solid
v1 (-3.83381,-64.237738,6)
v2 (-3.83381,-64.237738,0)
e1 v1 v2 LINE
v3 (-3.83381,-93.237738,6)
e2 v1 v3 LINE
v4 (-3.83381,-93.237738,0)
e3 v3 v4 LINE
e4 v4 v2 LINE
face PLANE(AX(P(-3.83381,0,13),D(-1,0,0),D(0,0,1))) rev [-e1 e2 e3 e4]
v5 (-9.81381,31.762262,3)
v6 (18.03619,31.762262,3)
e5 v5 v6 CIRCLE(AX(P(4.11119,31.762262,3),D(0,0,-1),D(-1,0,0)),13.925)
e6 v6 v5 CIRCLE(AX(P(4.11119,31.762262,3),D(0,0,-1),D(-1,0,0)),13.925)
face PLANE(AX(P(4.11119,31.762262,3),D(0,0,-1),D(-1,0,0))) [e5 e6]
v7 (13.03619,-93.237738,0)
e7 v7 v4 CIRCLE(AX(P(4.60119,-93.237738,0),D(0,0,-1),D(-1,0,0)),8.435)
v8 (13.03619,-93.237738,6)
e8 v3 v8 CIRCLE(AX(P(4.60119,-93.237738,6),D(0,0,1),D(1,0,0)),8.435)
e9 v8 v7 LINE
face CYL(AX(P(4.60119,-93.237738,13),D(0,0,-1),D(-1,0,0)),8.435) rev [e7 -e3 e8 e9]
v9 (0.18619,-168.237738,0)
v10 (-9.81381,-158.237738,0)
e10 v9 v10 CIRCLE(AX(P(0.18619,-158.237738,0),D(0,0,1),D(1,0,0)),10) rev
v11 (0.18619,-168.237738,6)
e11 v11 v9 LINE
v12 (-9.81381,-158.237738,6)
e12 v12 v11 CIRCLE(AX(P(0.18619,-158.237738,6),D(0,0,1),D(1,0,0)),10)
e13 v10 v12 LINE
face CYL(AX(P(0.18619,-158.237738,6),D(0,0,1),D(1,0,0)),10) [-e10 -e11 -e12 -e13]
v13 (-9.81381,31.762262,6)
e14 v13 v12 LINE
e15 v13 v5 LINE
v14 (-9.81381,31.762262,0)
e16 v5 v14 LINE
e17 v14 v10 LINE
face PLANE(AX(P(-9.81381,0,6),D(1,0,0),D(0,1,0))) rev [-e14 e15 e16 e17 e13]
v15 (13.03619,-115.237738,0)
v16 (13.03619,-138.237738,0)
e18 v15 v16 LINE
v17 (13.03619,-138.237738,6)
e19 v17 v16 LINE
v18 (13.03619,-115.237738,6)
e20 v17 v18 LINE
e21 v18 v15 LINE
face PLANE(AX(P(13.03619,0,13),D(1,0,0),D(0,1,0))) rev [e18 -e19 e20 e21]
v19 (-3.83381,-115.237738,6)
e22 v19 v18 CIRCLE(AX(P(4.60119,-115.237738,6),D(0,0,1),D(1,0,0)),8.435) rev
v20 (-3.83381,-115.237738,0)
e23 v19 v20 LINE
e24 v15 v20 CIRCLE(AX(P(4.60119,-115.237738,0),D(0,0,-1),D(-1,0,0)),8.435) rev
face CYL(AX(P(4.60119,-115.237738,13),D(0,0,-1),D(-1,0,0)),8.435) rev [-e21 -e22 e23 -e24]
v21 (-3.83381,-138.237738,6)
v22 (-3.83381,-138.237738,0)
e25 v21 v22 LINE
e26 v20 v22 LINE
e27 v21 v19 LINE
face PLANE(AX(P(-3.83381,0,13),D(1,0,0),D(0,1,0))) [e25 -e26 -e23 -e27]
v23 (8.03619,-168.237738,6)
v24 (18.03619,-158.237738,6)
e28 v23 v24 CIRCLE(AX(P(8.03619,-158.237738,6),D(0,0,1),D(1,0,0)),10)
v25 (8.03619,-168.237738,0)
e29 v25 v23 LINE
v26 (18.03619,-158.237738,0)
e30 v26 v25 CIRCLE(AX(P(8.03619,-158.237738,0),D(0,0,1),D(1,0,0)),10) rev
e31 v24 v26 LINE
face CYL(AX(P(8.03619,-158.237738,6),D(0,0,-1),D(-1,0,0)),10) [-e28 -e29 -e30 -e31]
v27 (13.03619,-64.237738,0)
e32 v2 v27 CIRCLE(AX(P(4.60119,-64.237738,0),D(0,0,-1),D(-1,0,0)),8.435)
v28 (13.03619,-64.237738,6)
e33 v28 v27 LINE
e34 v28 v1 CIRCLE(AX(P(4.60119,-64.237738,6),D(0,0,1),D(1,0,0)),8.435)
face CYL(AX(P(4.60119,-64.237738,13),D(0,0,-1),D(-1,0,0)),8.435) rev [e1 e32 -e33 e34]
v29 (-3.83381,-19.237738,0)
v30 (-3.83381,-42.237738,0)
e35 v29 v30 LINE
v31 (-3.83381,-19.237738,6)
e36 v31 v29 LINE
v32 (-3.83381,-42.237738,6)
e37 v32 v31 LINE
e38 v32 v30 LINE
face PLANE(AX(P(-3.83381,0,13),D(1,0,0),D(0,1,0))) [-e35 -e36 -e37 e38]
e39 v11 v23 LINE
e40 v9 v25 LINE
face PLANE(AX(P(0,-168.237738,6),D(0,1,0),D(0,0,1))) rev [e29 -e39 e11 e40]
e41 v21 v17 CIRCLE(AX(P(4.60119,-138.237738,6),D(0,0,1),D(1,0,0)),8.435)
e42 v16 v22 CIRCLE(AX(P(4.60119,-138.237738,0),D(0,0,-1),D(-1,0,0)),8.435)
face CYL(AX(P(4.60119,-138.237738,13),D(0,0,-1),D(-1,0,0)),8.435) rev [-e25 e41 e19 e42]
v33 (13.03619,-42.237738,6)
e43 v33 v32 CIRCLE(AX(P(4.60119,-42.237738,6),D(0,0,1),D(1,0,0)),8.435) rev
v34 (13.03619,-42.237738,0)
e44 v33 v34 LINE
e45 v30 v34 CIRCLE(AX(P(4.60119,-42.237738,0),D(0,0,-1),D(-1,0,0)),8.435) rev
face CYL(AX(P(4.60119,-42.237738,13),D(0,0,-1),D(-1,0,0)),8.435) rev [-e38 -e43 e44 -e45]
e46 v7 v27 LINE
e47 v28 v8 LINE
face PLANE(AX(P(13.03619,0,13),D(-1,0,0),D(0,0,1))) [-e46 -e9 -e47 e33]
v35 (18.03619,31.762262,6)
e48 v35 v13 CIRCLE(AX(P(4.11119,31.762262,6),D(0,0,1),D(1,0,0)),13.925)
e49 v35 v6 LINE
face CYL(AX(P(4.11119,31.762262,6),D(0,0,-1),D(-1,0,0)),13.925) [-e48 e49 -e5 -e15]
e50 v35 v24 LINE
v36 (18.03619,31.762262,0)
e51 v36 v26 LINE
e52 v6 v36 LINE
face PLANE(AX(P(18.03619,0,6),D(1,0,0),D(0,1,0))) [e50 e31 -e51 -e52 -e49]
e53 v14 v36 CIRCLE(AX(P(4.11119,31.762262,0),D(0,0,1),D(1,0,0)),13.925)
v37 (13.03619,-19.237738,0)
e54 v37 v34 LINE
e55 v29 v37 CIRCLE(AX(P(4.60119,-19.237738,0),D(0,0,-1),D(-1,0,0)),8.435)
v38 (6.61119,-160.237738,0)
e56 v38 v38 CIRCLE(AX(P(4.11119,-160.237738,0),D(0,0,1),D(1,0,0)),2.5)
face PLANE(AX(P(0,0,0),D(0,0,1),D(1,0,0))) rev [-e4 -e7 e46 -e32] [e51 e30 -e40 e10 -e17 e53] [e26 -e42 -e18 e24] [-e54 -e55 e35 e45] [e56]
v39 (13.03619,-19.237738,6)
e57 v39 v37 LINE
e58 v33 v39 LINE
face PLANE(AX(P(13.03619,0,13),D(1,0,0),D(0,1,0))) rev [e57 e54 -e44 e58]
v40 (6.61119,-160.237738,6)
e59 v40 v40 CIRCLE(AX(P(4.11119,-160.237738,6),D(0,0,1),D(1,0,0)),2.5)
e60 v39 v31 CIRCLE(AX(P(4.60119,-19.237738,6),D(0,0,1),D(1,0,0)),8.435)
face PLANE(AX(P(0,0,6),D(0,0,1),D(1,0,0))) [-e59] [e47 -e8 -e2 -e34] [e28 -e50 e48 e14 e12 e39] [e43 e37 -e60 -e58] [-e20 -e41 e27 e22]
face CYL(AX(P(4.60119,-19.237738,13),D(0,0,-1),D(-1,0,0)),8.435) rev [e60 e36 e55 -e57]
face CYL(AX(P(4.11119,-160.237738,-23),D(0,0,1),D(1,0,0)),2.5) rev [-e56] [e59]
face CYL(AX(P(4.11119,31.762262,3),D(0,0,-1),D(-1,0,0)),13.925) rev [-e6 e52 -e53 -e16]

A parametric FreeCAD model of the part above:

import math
import FreeCAD as App
import Part
import Sketcher
from FreeCAD import Vector


def edges_at(feature, points):
    """Names of the edges that pass closest to the given points."""
    edges = feature.Shape.Edges
    near = lambda p: min(range(len(edges)), key=lambda i: edges[i].distToShape(Part.Vertex(*p))[0])
    return sorted({f"Edge{near(p) + 1}" for p in points})

doc = App.newDocument("Part")
body = doc.addObject("PartDesign::Body", "Body")

sketch1 = doc.addObject("Sketcher::SketchObject", "Sketch")
body.addObject(sketch1)
sketch1.AttachmentSupport = (doc.XY_Plane, [""])
sketch1.MapMode = "FlatFace"
sketch1.addGeometry(Part.LineSegment(Vector(-9.81381, 31.762262, 0), Vector(-9.81381, -168.237738, 0)), False)
sketch1.addGeometry(Part.LineSegment(Vector(-9.81381, -168.237738, 0), Vector(18.03619, -168.237738, 0)), False)
sketch1.addGeometry(Part.LineSegment(Vector(18.03619, -168.237738, 0), Vector(18.03619, 31.762262, 0)), False)
sketch1.addGeometry(Part.ArcOfCircle(Part.Circle(Vector(4.11119, 31.762262, 0), Vector(0, 0, 1), 13.925), math.radians(0), math.radians(180)), False)
sketch1.addConstraint(Sketcher.Constraint("Coincident", 0, 2, 1, 1))
sketch1.addConstraint(Sketcher.Constraint("Coincident", 1, 2, 2, 1))
sketch1.addConstraint(Sketcher.Constraint("Tangent", 2, 2, 3, 1))
sketch1.addConstraint(Sketcher.Constraint("Tangent", 3, 2, 0, 1))
sketch1.addConstraint(Sketcher.Constraint("Vertical", 0))
sketch1.addConstraint(Sketcher.Constraint("Horizontal", 1))
sketch1.addConstraint(Sketcher.Constraint("Vertical", 2))
sketch1.addConstraint(Sketcher.Constraint("DistanceY", 0, 2, 0, 1, 200.0))
sketch1.addConstraint(Sketcher.Constraint("Radius", 3, 13.925))
sketch1.addConstraint(Sketcher.Constraint("DistanceX", -1, 1, 3, 3, 4.11119))
sketch1.addConstraint(Sketcher.Constraint("DistanceY", -1, 1, 3, 3, 31.762262))
pad1 = doc.addObject("PartDesign::Pad", "Pad")
body.addObject(pad1)
pad1.Profile = sketch1
pad1.Length = 6

sketch2 = doc.addObject("Sketcher::SketchObject", "Sketch001")
body.addObject(sketch2)
sketch2.AttachmentSupport = (doc.XY_Plane, [""])
sketch2.MapMode = "FlatFace"
sketch2.AttachmentOffset = App.Placement(Vector(0, 0, 6), App.Rotation())
sketch2.addGeometry(Part.Circle(Vector(4.11119, -160.237738, 0), Vector(0, 0, 1), 2.5), False)
sketch2.addConstraint(Sketcher.Constraint("Diameter", 0, 5.0))
sketch2.addConstraint(Sketcher.Constraint("DistanceX", -1, 1, 0, 3, 4.11119))
sketch2.addConstraint(Sketcher.Constraint("DistanceY", 0, 3, -1, 1, 160.237738))
pocket1 = doc.addObject("PartDesign::Pocket", "Pocket")
body.addObject(pocket1)
pocket1.Profile = sketch2
pocket1.Length = 29

sketch3 = doc.addObject("Sketcher::SketchObject", "Sketch002")
body.addObject(sketch3)
sketch3.AttachmentSupport = (doc.XY_Plane, [""])
sketch3.MapMode = "FlatFace"
sketch3.addGeometry(Part.Circle(Vector(4.11119, 31.762262, 0), Vector(0, 0, 1), 13.925), False)
sketch3.addConstraint(Sketcher.Constraint("Diameter", 0, 27.85))
sketch3.addConstraint(Sketcher.Constraint("DistanceX", -1, 1, 0, 3, 4.11119))
sketch3.addConstraint(Sketcher.Constraint("DistanceY", -1, 1, 0, 3, 31.762262))
pocket2 = doc.addObject("PartDesign::Pocket", "Pocket001")
body.addObject(pocket2)
pocket2.Profile = sketch3
pocket2.Length = 3
pocket2.Reversed = True

sketch4 = doc.addObject("Sketcher::SketchObject", "Sketch003")
body.addObject(sketch4)
sketch4.AttachmentSupport = (doc.XY_Plane, [""])
sketch4.MapMode = "FlatFace"
sketch4.addGeometry(Part.ArcOfCircle(Part.Circle(Vector(4.60119, -115.237738, 0), Vector(0, 0, 1), 8.435), math.radians(0), math.radians(180)), False)
sketch4.addGeometry(Part.LineSegment(Vector(13.03619, -115.237738, 0), Vector(13.03619, -138.237738, 0)), False)
sketch4.addGeometry(Part.ArcOfCircle(Part.Circle(Vector(4.60119, -138.237738, 0), Vector(0, 0, 1), 8.435), math.radians(180), math.radians(360)), False)
sketch4.addGeometry(Part.LineSegment(Vector(-3.83381, -138.237738, 0), Vector(-3.83381, -115.237738, 0)), False)
sketch4.addGeometry(Part.ArcOfCircle(Part.Circle(Vector(4.60119, -93.237738, 0), Vector(0, 0, 1), 8.435), math.radians(180), math.radians(360)), False)
sketch4.addGeometry(Part.LineSegment(Vector(-3.83381, -93.237738, 0), Vector(-3.83381, -64.237738, 0)), False)
sketch4.addGeometry(Part.ArcOfCircle(Part.Circle(Vector(4.60119, -64.237738, 0), Vector(0, 0, 1), 8.435), math.radians(0), math.radians(180)), False)
sketch4.addGeometry(Part.LineSegment(Vector(13.03619, -64.237738, 0), Vector(13.03619, -93.237738, 0)), False)
sketch4.addGeometry(Part.ArcOfCircle(Part.Circle(Vector(4.60119, -42.237738, 0), Vector(0, 0, 1), 8.435), math.radians(180), math.radians(360)), False)
sketch4.addGeometry(Part.LineSegment(Vector(-3.83381, -42.237738, 0), Vector(-3.83381, -19.237738, 0)), False)
sketch4.addGeometry(Part.ArcOfCircle(Part.Circle(Vector(4.60119, -19.237738, 0), Vector(0, 0, 1), 8.435), math.radians(0), math.radians(180)), False)
sketch4.addGeometry(Part.LineSegment(Vector(13.03619, -19.237738, 0), Vector(13.03619, -42.237738, 0)), False)
sketch4.addConstraint(Sketcher.Constraint("Tangent", 0, 1, 1, 1))
sketch4.addConstraint(Sketcher.Constraint("Tangent", 1, 2, 2, 2))
sketch4.addConstraint(Sketcher.Constraint("Tangent", 2, 1, 3, 1))
sketch4.addConstraint(Sketcher.Constraint("Tangent", 3, 2, 0, 2))
sketch4.addConstraint(Sketcher.Constraint("Tangent", 4, 1, 5, 1))
sketch4.addConstraint(Sketcher.Constraint("Tangent", 5, 2, 6, 2))
sketch4.addConstraint(Sketcher.Constraint("Tangent", 6, 1, 7, 1))
sketch4.addConstraint(Sketcher.Constraint("Tangent", 7, 2, 4, 2))
sketch4.addConstraint(Sketcher.Constraint("Tangent", 8, 1, 9, 1))
sketch4.addConstraint(Sketcher.Constraint("Tangent", 9, 2, 10, 2))
sketch4.addConstraint(Sketcher.Constraint("Tangent", 10, 1, 11, 1))
sketch4.addConstraint(Sketcher.Constraint("Tangent", 11, 2, 8, 2))
sketch4.addConstraint(Sketcher.Constraint("Vertical", 1))
sketch4.addConstraint(Sketcher.Constraint("Vertical", 3))
sketch4.addConstraint(Sketcher.Constraint("Vertical", 5))
sketch4.addConstraint(Sketcher.Constraint("Vertical", 7))
sketch4.addConstraint(Sketcher.Constraint("Vertical", 9))
sketch4.addConstraint(Sketcher.Constraint("Vertical", 11))
sketch4.addConstraint(Sketcher.Constraint("Equal", 2, 4))
sketch4.addConstraint(Sketcher.Constraint("Equal", 6, 8))
sketch4.addConstraint(Sketcher.Constraint("Vertical", 2, 3, 4, 3))
sketch4.addConstraint(Sketcher.Constraint("Vertical", 6, 3, 8, 3))
sketch4.addConstraint(Sketcher.Constraint("Equal", 3, 9))
sketch4.addConstraint(Sketcher.Constraint("DistanceY", 1, 2, 1, 1, 23.0))
sketch4.addConstraint(Sketcher.Constraint("DistanceY", 5, 1, 5, 2, 29.0))
sketch4.addConstraint(Sketcher.Constraint("Radius", 0, 8.435))
sketch4.addConstraint(Sketcher.Constraint("DistanceY", 0, 3, 4, 3, 22.0))
sketch4.addConstraint(Sketcher.Constraint("DistanceY", 6, 3, 8, 3, 22.0))
sketch4.addConstraint(Sketcher.Constraint("DistanceX", -1, 1, 0, 3, 4.60119))
sketch4.addConstraint(Sketcher.Constraint("DistanceY", 0, 3, -1, 1, 115.237738))
pocket3 = doc.addObject("PartDesign::Pocket", "Pocket002")
body.addObject(pocket3)
pocket3.Profile = sketch4
pocket3.Length = 13
pocket3.Reversed = True
doc.recompute()

fillet = doc.addObject("PartDesign::Fillet", "Fillet")
body.addObject(fillet)
fillet.Base = (pocket3, edges_at(pocket3, [(18.036, -168.238, 3)]))
fillet.Radius = 10
doc.recompute()

fillet2 = doc.addObject("PartDesign::Fillet", "Fillet001")
body.addObject(fillet2)
fillet2.Base = (fillet, edges_at(fillet, [(-9.814, -168.238, 3)]))
fillet2.Radius = 10

doc.recompute()
